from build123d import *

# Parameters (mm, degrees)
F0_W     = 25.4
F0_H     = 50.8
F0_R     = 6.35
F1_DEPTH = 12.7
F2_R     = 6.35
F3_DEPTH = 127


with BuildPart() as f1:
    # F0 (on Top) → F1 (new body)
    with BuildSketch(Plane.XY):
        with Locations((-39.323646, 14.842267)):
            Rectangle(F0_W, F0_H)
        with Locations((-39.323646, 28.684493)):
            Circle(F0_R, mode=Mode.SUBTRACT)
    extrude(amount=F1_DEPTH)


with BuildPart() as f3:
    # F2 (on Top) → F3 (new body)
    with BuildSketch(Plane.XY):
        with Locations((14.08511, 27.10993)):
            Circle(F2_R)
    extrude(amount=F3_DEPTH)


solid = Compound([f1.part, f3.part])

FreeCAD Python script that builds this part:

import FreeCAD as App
import Part
import Sketcher

V = App.Vector
Q = App.Units.Quantity


def add_polygon(sketch, points):
    """Adds a closed chain of lines whose ends are joined by coincident constraints."""
    first, n = sketch.GeometryCount, len(points)
    for a, b in zip(points, points[1:] + points[:1]):
        sketch.addGeometry(Part.LineSegment(App.Vector(*a, 0), App.Vector(*b, 0)), False)
    for i in range(n):
        sketch.addConstraint(Sketcher.Constraint("Coincident", first + i, 2, first + (i + 1) % n, 1))

doc = App.newDocument("Part")
body = doc.addObject("PartDesign::Body", "Body")

sketch1 = body.newObject("Sketcher::SketchObject", "Sketch")
sketch1.AttachmentSupport = (doc.getObject("XY_Plane"), [""])
sketch1.MapMode = "FlatFace"
add_polygon(sketch1, [(-52.023646, 40.242267), (-52.023646, -10.557733), (-26.623646, -10.557733), (-26.623646, 40.242267)])
sketch1.addGeometry(Part.Circle(V(-39.323646, 28.684493, 0), V(0, 0, 1), 6.35), False)
sketch1.addConstraint([
    Sketcher.Constraint("Vertical", 0),
    Sketcher.Constraint("Horizontal", 1),
    Sketcher.Constraint("Vertical", 2),
    Sketcher.Constraint("Horizontal", 3),
    Sketcher.Constraint("Diameter", 4, Q("0.5 in")),
    Sketcher.Constraint("DistanceX", 1, 1, 1, 2, Q("1 in")),
    Sketcher.Constraint("DistanceY", 0, 2, 0, 1, Q("2 in")),
    Sketcher.Constraint("DistanceX", 0, 2, 4, 3, Q("0.5 in")),
    Sketcher.Constraint("DistanceX", 4, 3, -1, 1, 39.323646),
    Sketcher.Constraint("DistanceY", -1, 1, 4, 3, 28.684493),
    Sketcher.Constraint("DistanceY", 0, 2, -1, 1, 10.557733),
])
pad1 = body.newObject("PartDesign::Pad", "Pad")
pad1.Profile = sketch1
pad1.Length = Q("0.5 in")
body2 = doc.addObject("PartDesign::Body", "Body001")

sketch2 = body2.newObject("Sketcher::SketchObject", "Sketch001")
sketch2.AttachmentSupport = (doc.getObject("XY_Plane001"), [""])
sketch2.MapMode = "FlatFace"
sketch2.addGeometry(Part.Circle(V(14.08511, 27.10993, 0), V(0, 0, 1), 6.35), False)
sketch2.addConstraint([
    Sketcher.Constraint("Diameter", 0, Q("0.5 in")),
    Sketcher.Constraint("DistanceX", -1, 1, 0, 3, 14.08511),
    Sketcher.Constraint("DistanceY", -1, 1, 0, 3, 27.10993),
])
pad2 = body2.newObject("PartDesign::Pad", "Pad001")
pad2.Profile = sketch2
pad2.Length = Q("5 in")

doc.recompute()
